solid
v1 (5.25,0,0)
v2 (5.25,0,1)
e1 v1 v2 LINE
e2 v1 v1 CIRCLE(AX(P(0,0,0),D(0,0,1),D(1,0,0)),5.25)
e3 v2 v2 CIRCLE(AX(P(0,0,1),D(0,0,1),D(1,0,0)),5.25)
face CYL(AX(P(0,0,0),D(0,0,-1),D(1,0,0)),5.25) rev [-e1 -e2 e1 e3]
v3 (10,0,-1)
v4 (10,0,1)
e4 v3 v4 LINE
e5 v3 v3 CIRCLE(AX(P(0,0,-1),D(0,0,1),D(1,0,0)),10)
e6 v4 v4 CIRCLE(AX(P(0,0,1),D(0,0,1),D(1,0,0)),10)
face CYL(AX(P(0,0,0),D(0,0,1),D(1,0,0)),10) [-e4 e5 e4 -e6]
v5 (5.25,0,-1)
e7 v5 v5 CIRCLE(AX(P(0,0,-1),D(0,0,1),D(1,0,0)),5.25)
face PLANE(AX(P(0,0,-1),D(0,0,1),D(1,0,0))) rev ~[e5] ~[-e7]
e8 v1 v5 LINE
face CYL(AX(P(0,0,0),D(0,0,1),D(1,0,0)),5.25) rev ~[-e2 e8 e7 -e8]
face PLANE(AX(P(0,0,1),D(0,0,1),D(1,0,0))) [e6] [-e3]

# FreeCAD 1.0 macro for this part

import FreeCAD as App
import Part
import Sketcher

V = App.Vector
Q = App.Units.Quantity

doc = App.newDocument("Part")
body = doc.addObject("PartDesign::Body", "Body")

# Sketch on XY plane
sketch1 = doc.addObject("Sketcher::SketchObject", "Sketch")
body.addObject(sketch1)
sketch1.AttachmentSupport = (doc.XY_Plane, [""])
sketch1.MapMode = "FlatFace"
sketch1.addGeometry(Part.Circle(V(0, 0, 0), V(0, 0, 1), 10), False)
sketch1.addGeometry(Part.Circle(V(0, 0, 0), V(0, 0, 1), 5), False)
sketch1.addConstraint(Sketcher.Constraint("Coincident", 0, 3, -1, 1))
sketch1.addConstraint(Sketcher.Constraint("Coincident", 1, 3, -1, 1))
sketch1.addConstraint(Sketcher.Constraint("Diameter", 0, Q("20 mm")))
sketch1.addConstraint(Sketcher.Constraint("Diameter", 1, Q("10.5 mm")))
pad1 = doc.addObject("PartDesign::Pad", "Pad")
body.addObject(pad1)
pad1.Profile = sketch1
pad1.Type = "TwoLengths"
pad1.Length = 1
pad1.Length2 = 1

doc.recompute()
